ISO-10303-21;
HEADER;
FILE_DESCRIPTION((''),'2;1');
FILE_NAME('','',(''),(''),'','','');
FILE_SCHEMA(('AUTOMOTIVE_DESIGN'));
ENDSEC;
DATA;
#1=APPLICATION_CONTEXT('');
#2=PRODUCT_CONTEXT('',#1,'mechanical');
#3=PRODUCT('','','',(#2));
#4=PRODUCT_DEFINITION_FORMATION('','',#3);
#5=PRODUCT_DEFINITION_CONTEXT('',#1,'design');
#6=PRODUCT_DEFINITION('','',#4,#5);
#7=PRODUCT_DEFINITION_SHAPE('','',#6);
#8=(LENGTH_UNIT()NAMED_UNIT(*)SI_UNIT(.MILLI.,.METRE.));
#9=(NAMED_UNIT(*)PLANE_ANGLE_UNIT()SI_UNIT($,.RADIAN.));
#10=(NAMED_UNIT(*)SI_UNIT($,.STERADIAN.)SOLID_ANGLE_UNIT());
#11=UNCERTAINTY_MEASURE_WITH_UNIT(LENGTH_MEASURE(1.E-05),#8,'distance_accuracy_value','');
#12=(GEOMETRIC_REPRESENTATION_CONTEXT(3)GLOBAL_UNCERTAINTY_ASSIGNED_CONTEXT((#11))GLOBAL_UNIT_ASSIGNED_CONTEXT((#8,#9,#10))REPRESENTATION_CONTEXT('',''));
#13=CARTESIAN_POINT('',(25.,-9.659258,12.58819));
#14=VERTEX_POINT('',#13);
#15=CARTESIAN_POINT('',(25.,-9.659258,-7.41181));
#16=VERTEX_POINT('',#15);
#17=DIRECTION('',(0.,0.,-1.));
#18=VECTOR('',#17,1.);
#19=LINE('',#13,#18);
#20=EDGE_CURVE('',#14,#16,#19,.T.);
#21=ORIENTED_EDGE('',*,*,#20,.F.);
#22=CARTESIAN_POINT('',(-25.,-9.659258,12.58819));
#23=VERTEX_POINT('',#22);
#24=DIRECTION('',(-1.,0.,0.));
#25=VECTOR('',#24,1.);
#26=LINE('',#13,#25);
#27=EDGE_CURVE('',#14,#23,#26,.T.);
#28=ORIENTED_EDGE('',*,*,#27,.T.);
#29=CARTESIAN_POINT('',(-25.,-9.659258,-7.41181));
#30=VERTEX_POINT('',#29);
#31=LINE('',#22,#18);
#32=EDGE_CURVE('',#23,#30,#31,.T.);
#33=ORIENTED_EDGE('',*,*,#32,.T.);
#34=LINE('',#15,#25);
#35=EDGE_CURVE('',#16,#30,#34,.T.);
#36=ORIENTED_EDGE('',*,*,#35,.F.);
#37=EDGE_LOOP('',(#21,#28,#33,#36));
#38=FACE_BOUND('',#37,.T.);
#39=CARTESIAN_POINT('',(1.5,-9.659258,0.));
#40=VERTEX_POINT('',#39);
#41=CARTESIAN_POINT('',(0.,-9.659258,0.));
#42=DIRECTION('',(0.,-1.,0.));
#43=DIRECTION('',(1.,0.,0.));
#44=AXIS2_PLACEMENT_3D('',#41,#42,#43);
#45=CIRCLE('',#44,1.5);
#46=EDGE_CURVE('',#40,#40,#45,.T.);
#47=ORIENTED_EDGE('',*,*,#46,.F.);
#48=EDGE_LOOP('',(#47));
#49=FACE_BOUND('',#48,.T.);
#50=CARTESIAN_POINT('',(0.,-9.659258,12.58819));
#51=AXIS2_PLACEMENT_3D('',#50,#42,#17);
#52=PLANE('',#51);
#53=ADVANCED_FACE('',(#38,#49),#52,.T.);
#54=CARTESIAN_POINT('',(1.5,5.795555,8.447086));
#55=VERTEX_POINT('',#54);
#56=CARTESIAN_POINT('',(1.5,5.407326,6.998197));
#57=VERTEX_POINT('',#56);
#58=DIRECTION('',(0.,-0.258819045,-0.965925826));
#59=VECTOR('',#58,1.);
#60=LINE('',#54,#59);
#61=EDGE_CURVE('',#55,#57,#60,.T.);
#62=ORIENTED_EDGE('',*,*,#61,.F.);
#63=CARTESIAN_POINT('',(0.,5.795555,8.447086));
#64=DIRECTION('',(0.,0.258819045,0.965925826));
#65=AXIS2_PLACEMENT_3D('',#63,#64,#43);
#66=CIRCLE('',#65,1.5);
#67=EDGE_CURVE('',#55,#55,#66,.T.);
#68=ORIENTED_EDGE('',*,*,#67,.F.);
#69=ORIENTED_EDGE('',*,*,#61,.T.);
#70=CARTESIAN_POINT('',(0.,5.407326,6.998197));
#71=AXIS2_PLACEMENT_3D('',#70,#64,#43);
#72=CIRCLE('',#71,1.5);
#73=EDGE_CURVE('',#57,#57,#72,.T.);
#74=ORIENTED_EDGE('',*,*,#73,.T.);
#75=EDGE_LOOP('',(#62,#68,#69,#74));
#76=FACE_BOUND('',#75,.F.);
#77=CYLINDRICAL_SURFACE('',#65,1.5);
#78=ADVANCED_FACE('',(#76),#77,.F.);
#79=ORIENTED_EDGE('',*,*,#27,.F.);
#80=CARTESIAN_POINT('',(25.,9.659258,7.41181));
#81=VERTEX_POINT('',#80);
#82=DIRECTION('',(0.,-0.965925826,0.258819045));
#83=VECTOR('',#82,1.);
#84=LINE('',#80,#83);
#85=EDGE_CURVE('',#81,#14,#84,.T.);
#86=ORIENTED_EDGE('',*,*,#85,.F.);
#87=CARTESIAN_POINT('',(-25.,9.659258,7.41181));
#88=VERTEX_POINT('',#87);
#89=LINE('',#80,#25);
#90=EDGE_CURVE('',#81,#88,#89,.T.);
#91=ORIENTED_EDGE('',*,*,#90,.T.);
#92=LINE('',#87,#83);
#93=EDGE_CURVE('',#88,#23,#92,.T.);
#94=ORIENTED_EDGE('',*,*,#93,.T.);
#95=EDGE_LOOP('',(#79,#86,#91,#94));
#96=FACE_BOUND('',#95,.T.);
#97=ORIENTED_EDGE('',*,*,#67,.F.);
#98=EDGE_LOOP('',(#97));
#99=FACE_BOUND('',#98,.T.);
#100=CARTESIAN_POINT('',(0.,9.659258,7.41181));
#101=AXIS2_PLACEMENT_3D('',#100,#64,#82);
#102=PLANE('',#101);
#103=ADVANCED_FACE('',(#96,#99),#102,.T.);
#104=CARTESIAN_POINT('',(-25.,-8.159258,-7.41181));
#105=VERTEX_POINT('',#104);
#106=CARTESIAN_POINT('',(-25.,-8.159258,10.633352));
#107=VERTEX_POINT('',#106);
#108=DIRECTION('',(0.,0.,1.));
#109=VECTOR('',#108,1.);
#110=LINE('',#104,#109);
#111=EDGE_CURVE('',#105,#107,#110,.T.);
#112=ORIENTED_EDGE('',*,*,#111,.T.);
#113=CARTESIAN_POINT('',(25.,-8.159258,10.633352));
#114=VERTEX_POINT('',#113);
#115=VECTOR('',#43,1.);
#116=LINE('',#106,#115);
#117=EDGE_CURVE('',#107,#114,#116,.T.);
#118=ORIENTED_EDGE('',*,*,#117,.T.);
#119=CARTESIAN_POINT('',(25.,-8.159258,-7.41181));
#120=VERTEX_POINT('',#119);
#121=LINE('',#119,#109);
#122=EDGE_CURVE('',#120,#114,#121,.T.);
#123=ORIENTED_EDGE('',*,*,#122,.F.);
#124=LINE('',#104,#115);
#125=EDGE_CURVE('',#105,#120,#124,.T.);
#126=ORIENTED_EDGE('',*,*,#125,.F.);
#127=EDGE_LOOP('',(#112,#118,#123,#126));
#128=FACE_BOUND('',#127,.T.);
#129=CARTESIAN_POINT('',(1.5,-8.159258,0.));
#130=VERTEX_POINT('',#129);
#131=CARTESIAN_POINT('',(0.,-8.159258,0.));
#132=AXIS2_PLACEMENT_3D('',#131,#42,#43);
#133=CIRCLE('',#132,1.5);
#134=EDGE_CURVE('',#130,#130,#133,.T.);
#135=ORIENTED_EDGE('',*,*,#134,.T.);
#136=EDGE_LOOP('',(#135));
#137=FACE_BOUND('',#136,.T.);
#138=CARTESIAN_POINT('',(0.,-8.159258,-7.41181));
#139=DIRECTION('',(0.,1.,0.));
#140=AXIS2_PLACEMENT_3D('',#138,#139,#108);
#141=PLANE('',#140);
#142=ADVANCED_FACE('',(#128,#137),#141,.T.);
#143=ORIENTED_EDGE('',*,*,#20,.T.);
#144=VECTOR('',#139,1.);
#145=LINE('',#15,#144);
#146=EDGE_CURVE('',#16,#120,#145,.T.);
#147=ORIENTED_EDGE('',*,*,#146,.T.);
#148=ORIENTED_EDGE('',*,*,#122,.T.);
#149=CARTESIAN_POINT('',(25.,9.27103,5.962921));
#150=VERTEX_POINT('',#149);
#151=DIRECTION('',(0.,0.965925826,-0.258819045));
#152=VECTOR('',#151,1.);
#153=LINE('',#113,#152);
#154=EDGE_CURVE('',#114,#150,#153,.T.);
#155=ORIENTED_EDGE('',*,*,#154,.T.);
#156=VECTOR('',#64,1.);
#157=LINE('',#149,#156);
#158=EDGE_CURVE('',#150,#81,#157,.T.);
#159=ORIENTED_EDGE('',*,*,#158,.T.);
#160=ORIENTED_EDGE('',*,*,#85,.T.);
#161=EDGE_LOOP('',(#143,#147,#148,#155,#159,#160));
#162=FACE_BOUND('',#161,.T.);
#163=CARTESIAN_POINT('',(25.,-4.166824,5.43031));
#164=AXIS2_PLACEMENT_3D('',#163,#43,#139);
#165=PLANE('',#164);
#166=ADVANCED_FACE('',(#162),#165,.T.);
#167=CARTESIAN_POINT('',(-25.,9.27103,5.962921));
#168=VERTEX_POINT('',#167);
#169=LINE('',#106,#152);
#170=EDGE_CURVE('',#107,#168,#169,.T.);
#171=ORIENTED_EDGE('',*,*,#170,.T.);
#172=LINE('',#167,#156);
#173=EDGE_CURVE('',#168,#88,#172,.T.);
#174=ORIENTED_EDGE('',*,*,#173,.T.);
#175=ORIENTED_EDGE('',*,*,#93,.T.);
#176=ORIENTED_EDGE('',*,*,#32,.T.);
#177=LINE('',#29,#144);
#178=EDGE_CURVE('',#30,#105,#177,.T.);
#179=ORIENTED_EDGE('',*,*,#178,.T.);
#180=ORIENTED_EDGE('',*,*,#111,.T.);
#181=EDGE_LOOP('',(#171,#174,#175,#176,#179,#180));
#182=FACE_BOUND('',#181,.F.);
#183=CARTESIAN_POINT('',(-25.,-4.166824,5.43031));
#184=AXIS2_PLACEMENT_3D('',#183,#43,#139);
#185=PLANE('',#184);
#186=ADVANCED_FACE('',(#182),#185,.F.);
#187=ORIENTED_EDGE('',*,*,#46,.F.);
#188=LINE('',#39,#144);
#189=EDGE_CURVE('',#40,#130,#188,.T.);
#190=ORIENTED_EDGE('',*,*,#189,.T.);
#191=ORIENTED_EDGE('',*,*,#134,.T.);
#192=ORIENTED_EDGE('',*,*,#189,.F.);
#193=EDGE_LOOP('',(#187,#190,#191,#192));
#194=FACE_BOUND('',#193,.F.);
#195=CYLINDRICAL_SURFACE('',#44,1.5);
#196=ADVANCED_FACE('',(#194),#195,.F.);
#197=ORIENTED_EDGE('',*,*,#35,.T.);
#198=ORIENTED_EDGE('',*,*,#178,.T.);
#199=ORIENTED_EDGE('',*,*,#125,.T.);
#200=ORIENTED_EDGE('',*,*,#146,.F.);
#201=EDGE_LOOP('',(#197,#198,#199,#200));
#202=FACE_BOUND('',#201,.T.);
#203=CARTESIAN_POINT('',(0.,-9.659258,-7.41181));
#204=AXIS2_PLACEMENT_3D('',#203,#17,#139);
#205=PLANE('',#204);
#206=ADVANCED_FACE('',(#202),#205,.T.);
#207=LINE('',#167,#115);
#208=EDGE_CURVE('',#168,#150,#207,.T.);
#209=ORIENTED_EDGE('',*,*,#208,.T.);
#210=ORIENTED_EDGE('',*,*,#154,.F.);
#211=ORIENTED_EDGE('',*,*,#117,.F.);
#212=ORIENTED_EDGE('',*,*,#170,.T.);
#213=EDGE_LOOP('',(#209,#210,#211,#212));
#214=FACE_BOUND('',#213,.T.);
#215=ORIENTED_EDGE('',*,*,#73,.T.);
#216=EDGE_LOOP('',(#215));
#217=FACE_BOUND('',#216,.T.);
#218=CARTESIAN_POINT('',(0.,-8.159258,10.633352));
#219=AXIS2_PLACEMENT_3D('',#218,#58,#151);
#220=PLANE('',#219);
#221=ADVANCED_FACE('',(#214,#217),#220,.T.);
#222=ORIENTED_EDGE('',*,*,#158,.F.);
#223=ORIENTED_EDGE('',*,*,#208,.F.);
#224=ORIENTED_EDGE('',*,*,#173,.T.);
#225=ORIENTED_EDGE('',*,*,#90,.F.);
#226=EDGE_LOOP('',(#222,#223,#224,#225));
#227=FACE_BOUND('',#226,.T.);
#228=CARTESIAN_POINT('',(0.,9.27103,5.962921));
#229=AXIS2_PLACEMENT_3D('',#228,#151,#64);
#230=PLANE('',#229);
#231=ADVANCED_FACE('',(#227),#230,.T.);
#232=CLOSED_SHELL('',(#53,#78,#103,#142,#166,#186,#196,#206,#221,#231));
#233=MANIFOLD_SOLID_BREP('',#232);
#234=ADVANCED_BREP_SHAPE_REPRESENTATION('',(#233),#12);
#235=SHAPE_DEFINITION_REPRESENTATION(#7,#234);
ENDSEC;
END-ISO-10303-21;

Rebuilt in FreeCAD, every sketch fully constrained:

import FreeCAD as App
import Part
import Sketcher
from FreeCAD import Vector
Q = App.Units.Quantity

doc = App.newDocument("Part")
body = doc.addObject("PartDesign::Body", "Body")

# Sketch on YZ plane
sketch1 = body.newObject("Sketcher::SketchObject", "Sketch")
sketch1.AttachmentSupport = (doc.getObject("YZ_Plane"), [""])
sketch1.MapMode = "FlatFace"
sketch1.addGeometry(Part.LineSegment(Vector(-9.659258, -7.41181, 0), Vector(-8.159258, -7.41181, 0)), False)
sketch1.addGeometry(Part.LineSegment(Vector(-8.159258, -7.41181, 0), Vector(-8.159258, 10.633352, 0)), False)
sketch1.addGeometry(Part.LineSegment(Vector(-8.159258, 10.633352, 0), Vector(9.27103, 5.962921, 0)), False)
sketch1.addGeometry(Part.LineSegment(Vector(9.27103, 5.962921, 0), Vector(9.659258, 7.41181, 0)), False)
sketch1.addGeometry(Part.LineSegment(Vector(9.659258, 7.41181, 0), Vector(-9.659258, 12.58819, 0)), False)
sketch1.addGeometry(Part.LineSegment(Vector(-9.659258, 12.58819, 0), Vector(-9.659258, -7.41181, 0)), False)
sketch1.addConstraint(Sketcher.Constraint("Coincident", 0, 2, 1, 1))
sketch1.addConstraint(Sketcher.Constraint("Coincident", 1, 2, 2, 1))
sketch1.addConstraint(Sketcher.Constraint("Coincident", 2, 2, 3, 1))
sketch1.addConstraint(Sketcher.Constraint("Coincident", 3, 2, 4, 1))
sketch1.addConstraint(Sketcher.Constraint("Coincident", 4, 2, 5, 1))
sketch1.addConstraint(Sketcher.Constraint("Coincident", 5, 2, 0, 1))
sketch1.addConstraint(Sketcher.Constraint("Horizontal", 0))
sketch1.addConstraint(Sketcher.Constraint("Vertical", 1))
sketch1.addConstraint(Sketcher.Constraint("Vertical", 5))
sketch1.addConstraint(Sketcher.Constraint("Symmetric", 3, 2, 5, 2, -1, 1))
sketch1.addConstraint(Sketcher.Constraint("Perpendicular", 2, 3))
sketch1.addConstraint(Sketcher.Constraint("Perpendicular", 3, 4))
sketch1.addConstraint(Sketcher.Constraint("DistanceY", 5, 2, 5, 1, Q("20 mm")))
sketch1.addConstraint(Sketcher.Constraint("Angle", 2, Q("-15 deg")))
sketch1.addConstraint(Sketcher.Constraint("Distance", 4, Q("20 mm")))
sketch1.addConstraint(Sketcher.Constraint("DistanceX", 0, 1, 0, 2, Q("1.5 mm")))
sketch1.addConstraint(Sketcher.Constraint("Distance", 3, Q("1.5 mm")))
pad1 = body.newObject("PartDesign::Pad", "Pad")
pad1.Profile = sketch1
pad1.Length = 50
pad1.Midplane = True

# Sketch on XZ plane
sketch2 = body.newObject("Sketcher::SketchObject", "Sketch001")
sketch2.AttachmentSupport = (doc.getObject("XZ_Plane"), [""])
sketch2.MapMode = "FlatFace"
sketch2.AttachmentOffset = App.Placement(Vector(0, 0, 9.659258), App.Rotation())
sketch2.addGeometry(Part.Circle(Vector(0, 0, 0), Vector(0, 0, 1), 1.5), False)
sketch2.addConstraint(Sketcher.Constraint("Coincident", 0, 3, -1, 1))
sketch2.addConstraint(Sketcher.Constraint("Diameter", 0, Q("3 mm")))
pocket1 = body.newObject("PartDesign::Pocket", "Pocket")
pocket1.Profile = sketch2
pocket1.Type = "ThroughAll"

# Sketch on an angled plane
sketch3 = body.newObject("Sketcher::SketchObject", "Sketch002")
sketch3.Placement = App.Placement(Vector(0, 2.5, 9.330127), App.Rotation(Vector(1, 0, 0), Vector(0, 0.965925826, -0.258819045), Vector(0, 0.258819045, 0.965925826), "ZXY"))
sketch3.addGeometry(Part.Circle(Vector(0, 3.41181, 0), Vector(0, 0, 1), 1.5), False)
sketch3.addConstraint(Sketcher.Constraint("PointOnObject", 0, 3, -2))
sketch3.addConstraint(Sketcher.Constraint("Diameter", 0, Q("3 mm")))
sketch3.addConstraint(Sketcher.Constraint("DistanceY", -1, 1, 0, 3, Q("3.41181 mm")))
pocket2 = body.newObject("PartDesign::Pocket", "Pocket001")
pocket2.Profile = sketch3
pocket2.Type = "ThroughAll"

doc.recompute()
